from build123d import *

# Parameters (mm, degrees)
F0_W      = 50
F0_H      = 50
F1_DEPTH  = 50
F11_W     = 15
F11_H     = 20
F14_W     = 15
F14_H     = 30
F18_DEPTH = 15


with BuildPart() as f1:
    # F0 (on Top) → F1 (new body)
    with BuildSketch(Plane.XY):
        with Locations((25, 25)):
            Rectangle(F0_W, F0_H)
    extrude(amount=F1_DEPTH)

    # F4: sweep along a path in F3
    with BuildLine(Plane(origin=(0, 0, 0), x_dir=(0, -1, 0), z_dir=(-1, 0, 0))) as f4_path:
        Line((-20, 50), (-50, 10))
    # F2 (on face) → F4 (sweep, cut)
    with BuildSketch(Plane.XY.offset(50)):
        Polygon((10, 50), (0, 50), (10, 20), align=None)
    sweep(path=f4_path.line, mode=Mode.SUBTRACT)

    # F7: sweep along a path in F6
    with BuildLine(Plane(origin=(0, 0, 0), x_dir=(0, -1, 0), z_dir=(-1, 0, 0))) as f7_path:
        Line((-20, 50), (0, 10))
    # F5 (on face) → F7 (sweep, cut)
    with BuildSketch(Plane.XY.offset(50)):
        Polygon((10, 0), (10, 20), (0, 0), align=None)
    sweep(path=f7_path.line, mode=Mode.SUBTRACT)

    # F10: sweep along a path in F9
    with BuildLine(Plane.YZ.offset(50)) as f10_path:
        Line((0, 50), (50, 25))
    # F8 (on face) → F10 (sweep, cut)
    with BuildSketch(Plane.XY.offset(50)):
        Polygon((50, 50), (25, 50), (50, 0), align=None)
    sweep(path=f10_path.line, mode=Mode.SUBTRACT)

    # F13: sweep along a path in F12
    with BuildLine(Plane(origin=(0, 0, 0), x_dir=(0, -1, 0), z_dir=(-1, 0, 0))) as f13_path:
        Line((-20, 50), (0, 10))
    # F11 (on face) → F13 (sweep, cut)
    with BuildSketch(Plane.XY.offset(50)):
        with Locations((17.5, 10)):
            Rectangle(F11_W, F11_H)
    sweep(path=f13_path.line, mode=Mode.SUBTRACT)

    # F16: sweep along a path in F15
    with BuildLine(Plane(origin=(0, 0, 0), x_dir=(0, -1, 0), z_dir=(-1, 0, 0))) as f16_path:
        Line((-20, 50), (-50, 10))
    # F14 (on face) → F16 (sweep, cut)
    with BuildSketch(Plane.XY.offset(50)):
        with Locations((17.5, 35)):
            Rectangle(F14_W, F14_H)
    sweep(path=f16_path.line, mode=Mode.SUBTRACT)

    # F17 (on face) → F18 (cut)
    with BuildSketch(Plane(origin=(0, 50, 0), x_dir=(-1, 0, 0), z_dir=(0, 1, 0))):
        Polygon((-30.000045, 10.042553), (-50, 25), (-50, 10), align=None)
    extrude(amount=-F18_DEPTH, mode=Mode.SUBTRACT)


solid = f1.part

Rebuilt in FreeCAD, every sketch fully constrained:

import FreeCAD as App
import Part
import Sketcher
from FreeCAD import Vector

doc = App.newDocument("Part")
body = doc.addObject("PartDesign::Body", "Body")

sketch1 = doc.addObject("Sketcher::SketchObject", "Sketch")
body.addObject(sketch1)
sketch1.AttachmentSupport = (doc.XY_Plane, [""])
sketch1.MapMode = "FlatFace"
sketch1.addGeometry([
    Part.LineSegment(Vector(0, 50, 0), Vector(0, 0, 0)),
    Part.LineSegment(Vector(0, 0, 0), Vector(50, 0, 0)),
    Part.LineSegment(Vector(50, 0, 0), Vector(50, 50, 0)),
    Part.LineSegment(Vector(50, 50, 0), Vector(0, 50, 0)),
], False)
sketch1.addConstraint([
    Sketcher.Constraint("Coincident", 0, 2, 1, 1),
    Sketcher.Constraint("Coincident", 1, 2, 2, 1),
    Sketcher.Constraint("Coincident", 2, 2, 3, 1),
    Sketcher.Constraint("Coincident", 3, 2, 0, 1),
    Sketcher.Constraint("Vertical", 0),
    Sketcher.Constraint("Horizontal", 1),
    Sketcher.Constraint("Vertical", 2),
    Sketcher.Constraint("Horizontal", 3),
    Sketcher.Constraint("Coincident", 0, 2, -1, 1),
    Sketcher.Constraint("Equal", 3, 0),
    Sketcher.Constraint("DistanceX", 1, 1, 1, 2, 50.0),
])
pad1 = doc.addObject("PartDesign::Pad", "Pad")
body.addObject(pad1)
pad1.Profile = sketch1
pad1.Length = 50

sketch2 = doc.addObject("Sketcher::SketchObject", "Sketch001")
body.addObject(sketch2)
sketch2.AttachmentSupport = (doc.XY_Plane, [""])
sketch2.MapMode = "FlatFace"
sketch2.AttachmentOffset = App.Placement(Vector(0, 0, 50), App.Rotation())
sketch2.addGeometry([
    Part.LineSegment(Vector(10, 50, 0), Vector(0, 50, 0)),
    Part.LineSegment(Vector(0, 50, 0), Vector(10, 20, 0)),
    Part.LineSegment(Vector(10, 20, 0), Vector(10, 50, 0)),
], False)
sketch2.addConstraint([
    Sketcher.Constraint("Coincident", 0, 2, 1, 1),
    Sketcher.Constraint("Coincident", 1, 2, 2, 1),
    Sketcher.Constraint("Coincident", 2, 2, 0, 1),
    Sketcher.Constraint("Horizontal", 0),
    Sketcher.Constraint("Vertical", 2),
    Sketcher.Constraint("PointOnObject", 0, 2, -2),
    Sketcher.Constraint("DistanceX", 0, 2, 0, 1, 10.0),
    Sketcher.Constraint("DistanceY", 2, 1, 2, 2, 30.0),
    Sketcher.Constraint("DistanceY", -1, 1, 0, 2, 50.0),
])

sketch3 = doc.addObject("Sketcher::SketchObject", "Sketch002")
body.addObject(sketch3)
sketch3.Placement = App.Placement(Vector(0, 36.8, 27.6), App.Rotation(Vector(0, 0.6, -0.8), Vector(1, 0, 0), Vector(0, -0.8, -0.6), "ZXY"))
sketch3.addGeometry(Part.LineSegment(Vector(-28, 0, 0), Vector(22, 0, 0)), False)
sketch3.addConstraint([
    Sketcher.Constraint("Horizontal", 0),
    Sketcher.Constraint("PointOnObject", 0, 1, -1),
    Sketcher.Constraint("DistanceX", 0, 1, 0, 2, 50.0),
    Sketcher.Constraint("DistanceX", 0, 1, -1, 1, 28.0),
])
doc.recompute()

subtractivepipe = doc.addObject("PartDesign::SubtractivePipe", "SubtractivePipe")
body.addObject(subtractivepipe)
subtractivepipe.Profile = sketch2
subtractivepipe.Spine = (sketch3, ["Edge1"])

sketch4 = doc.addObject("Sketcher::SketchObject", "Sketch003")
body.addObject(sketch4)
sketch4.AttachmentSupport = (doc.XY_Plane, [""])
sketch4.MapMode = "FlatFace"
sketch4.AttachmentOffset = App.Placement(Vector(0, 0, 50), App.Rotation())
sketch4.addGeometry([
    Part.LineSegment(Vector(10, 0, 0), Vector(10, 20, 0)),
    Part.LineSegment(Vector(10, 20, 0), Vector(0, 0, 0)),
    Part.LineSegment(Vector(0, 0, 0), Vector(10, 0, 0)),
], False)
sketch4.addConstraint([
    Sketcher.Constraint("Coincident", 0, 2, 1, 1),
    Sketcher.Constraint("Coincident", 1, 2, 2, 1),
    Sketcher.Constraint("Coincident", 2, 2, 0, 1),
    Sketcher.Constraint("Vertical", 0),
    Sketcher.Constraint("Horizontal", 2),
    Sketcher.Constraint("Coincident", 1, 2, -1, 1),
    Sketcher.Constraint("DistanceX", 2, 1, 2, 2, 10.0),
    Sketcher.Constraint("DistanceY", 0, 1, 0, 2, 20.0),
])

sketch5 = doc.addObject("Sketcher::SketchObject", "Sketch004")
body.addObject(sketch5)
sketch5.Placement = App.Placement(Vector(0, -4, 2), App.Rotation(Vector(0, 0.447213595, 0.894427191), Vector(1, 0, 0), Vector(0, 0.894427191, -0.447213595), "ZXY"))
sketch5.addGeometry(Part.LineSegment(Vector(53.665631, 0, 0), Vector(8.944272, 0, 0)), False)
sketch5.addConstraint([
    Sketcher.Constraint("Horizontal", 0),
    Sketcher.Constraint("PointOnObject", 0, 1, -1),
    Sketcher.Constraint("DistanceX", 0, 2, 0, 1, 44.72136),
    Sketcher.Constraint("DistanceX", -1, 1, 0, 1, 53.665631),
])
doc.recompute()

subtractivepipe2 = doc.addObject("PartDesign::SubtractivePipe", "SubtractivePipe001")
body.addObject(subtractivepipe2)
subtractivepipe2.Profile = sketch4
subtractivepipe2.Spine = (sketch5, ["Edge1"])

sketch6 = doc.addObject("Sketcher::SketchObject", "Sketch005")
body.addObject(sketch6)
sketch6.AttachmentSupport = (doc.XY_Plane, [""])
sketch6.MapMode = "FlatFace"
sketch6.AttachmentOffset = App.Placement(Vector(0, 0, 50), App.Rotation())
sketch6.addGeometry([
    Part.LineSegment(Vector(50, 50, 0), Vector(25, 50, 0)),
    Part.LineSegment(Vector(25, 50, 0), Vector(50, 0, 0)),
    Part.LineSegment(Vector(50, 0, 0), Vector(50, 50, 0)),
], False)
sketch6.addConstraint([
    Sketcher.Constraint("Coincident", 0, 2, 1, 1),
    Sketcher.Constraint("Coincident", 1, 2, 2, 1),
    Sketcher.Constraint("Coincident", 2, 2, 0, 1),
    Sketcher.Constraint("Horizontal", 0),
    Sketcher.Constraint("Vertical", 2),
    Sketcher.Constraint("PointOnObject", 1, 2, -1),
    Sketcher.Constraint("DistanceX", 0, 2, 0, 1, 25.0),
    Sketcher.Constraint("DistanceY", 2, 1, 2, 2, 50.0),
    Sketcher.Constraint("DistanceX", -1, 1, 0, 2, 25.0),
])

sketch7 = doc.addObject("Sketcher::SketchObject", "Sketch006")
body.addObject(sketch7)
sketch7.Placement = App.Placement(Vector(0, 20, 40), App.Rotation(Vector(0, -0.894427191, 0.447213595), Vector(1, 0, 0), Vector(0, 0.447213595, 0.894427191), "ZXY"))
sketch7.addGeometry(Part.LineSegment(Vector(22.36068, 50, 0), Vector(-33.54102, 50, 0)), False)
sketch7.addConstraint([
    Sketcher.Constraint("Horizontal", 0),
    Sketcher.Constraint("DistanceY", -1, 1, 0, 1, 50.0),
    Sketcher.Constraint("DistanceX", 0, 2, 0, 1, 55.901699),
    Sketcher.Constraint("DistanceX", -1, 1, 0, 1, 22.36068),
])
doc.recompute()

subtractivepipe3 = doc.addObject("PartDesign::SubtractivePipe", "SubtractivePipe002")
body.addObject(subtractivepipe3)
subtractivepipe3.Profile = sketch6
subtractivepipe3.Spine = (sketch7, ["Edge1"])

sketch8 = doc.addObject("Sketcher::SketchObject", "Sketch007")
body.addObject(sketch8)
sketch8.AttachmentSupport = (doc.XY_Plane, [""])
sketch8.MapMode = "FlatFace"
sketch8.AttachmentOffset = App.Placement(Vector(0, 0, 50), App.Rotation())
sketch8.addGeometry([
    Part.LineSegment(Vector(10, 20, 0), Vector(10, 0, 0)),
    Part.LineSegment(Vector(10, 0, 0), Vector(25, 0, 0)),
    Part.LineSegment(Vector(25, 0, 0), Vector(25, 20, 0)),
    Part.LineSegment(Vector(25, 20, 0), Vector(10, 20, 0)),
], False)
sketch8.addConstraint([
    Sketcher.Constraint("Coincident", 0, 2, 1, 1),
    Sketcher.Constraint("Coincident", 1, 2, 2, 1),
    Sketcher.Constraint("Coincident", 2, 2, 3, 1),
    Sketcher.Constraint("Coincident", 3, 2, 0, 1),
    Sketcher.Constraint("Vertical", 0),
    Sketcher.Constraint("Horizontal", 1),
    Sketcher.Constraint("Vertical", 2),
    Sketcher.Constraint("Horizontal", 3),
    Sketcher.Constraint("PointOnObject", 0, 2, -1),
    Sketcher.Constraint("DistanceX", 1, 1, 1, 2, 15.0),
    Sketcher.Constraint("DistanceY", 0, 2, 0, 1, 20.0),
    Sketcher.Constraint("DistanceX", -1, 1, 0, 2, 10.0),
])

sketch9 = doc.addObject("Sketcher::SketchObject", "Sketch008")
body.addObject(sketch9)
sketch9.Placement = App.Placement(Vector(0, -4, 2), App.Rotation(Vector(0, 0.447213595, 0.894427191), Vector(1, 0, 0), Vector(0, 0.894427191, -0.447213595), "ZXY"))
sketch9.addGeometry(Part.LineSegment(Vector(53.665631, 0, 0), Vector(8.944272, 0, 0)), False)
sketch9.addConstraint([
    Sketcher.Constraint("Horizontal", 0),
    Sketcher.Constraint("PointOnObject", 0, 1, -1),
    Sketcher.Constraint("DistanceX", 0, 2, 0, 1, 44.72136),
    Sketcher.Constraint("DistanceX", -1, 1, 0, 1, 53.665631),
])
doc.recompute()

subtractivepipe4 = doc.addObject("PartDesign::SubtractivePipe", "SubtractivePipe003")
body.addObject(subtractivepipe4)
subtractivepipe4.Profile = sketch8
subtractivepipe4.Spine = (sketch9, ["Edge1"])

sketch10 = doc.addObject("Sketcher::SketchObject", "Sketch009")
body.addObject(sketch10)
sketch10.AttachmentSupport = (doc.XY_Plane, [""])
sketch10.MapMode = "FlatFace"
sketch10.AttachmentOffset = App.Placement(Vector(0, 0, 50), App.Rotation())
sketch10.addGeometry([
    Part.LineSegment(Vector(10, 50, 0), Vector(10, 20, 0)),
    Part.LineSegment(Vector(10, 20, 0), Vector(25, 20, 0)),
    Part.LineSegment(Vector(25, 20, 0), Vector(25, 50, 0)),
    Part.LineSegment(Vector(25, 50, 0), Vector(10, 50, 0)),
], False)
sketch10.addConstraint([
    Sketcher.Constraint("Coincident", 0, 2, 1, 1),
    Sketcher.Constraint("Coincident", 1, 2, 2, 1),
    Sketcher.Constraint("Coincident", 2, 2, 3, 1),
    Sketcher.Constraint("Coincident", 3, 2, 0, 1),
    Sketcher.Constraint("Vertical", 0),
    Sketcher.Constraint("Horizontal", 1),
    Sketcher.Constraint("Vertical", 2),
    Sketcher.Constraint("Horizontal", 3),
    Sketcher.Constraint("DistanceX", 1, 1, 1, 2, 15.0),
    Sketcher.Constraint("DistanceY", 0, 2, 0, 1, 30.0),
    Sketcher.Constraint("DistanceX", -1, 1, 0, 2, 10.0),
    Sketcher.Constraint("DistanceY", -1, 1, 0, 2, 20.0),
])

sketch11 = doc.addObject("Sketcher::SketchObject", "Sketch010")
body.addObject(sketch11)
sketch11.Placement = App.Placement(Vector(0, 36.8, 27.6), App.Rotation(Vector(0, 0.6, -0.8), Vector(1, 0, 0), Vector(0, -0.8, -0.6), "ZXY"))
sketch11.addGeometry(Part.LineSegment(Vector(-28, 0, 0), Vector(22, 0, 0)), False)
sketch11.addConstraint([
    Sketcher.Constraint("Horizontal", 0),
    Sketcher.Constraint("PointOnObject", 0, 1, -1),
    Sketcher.Constraint("DistanceX", 0, 1, 0, 2, 50.0),
    Sketcher.Constraint("DistanceX", 0, 1, -1, 1, 28.0),
])
doc.recompute()

subtractivepipe5 = doc.addObject("PartDesign::SubtractivePipe", "SubtractivePipe004")
body.addObject(subtractivepipe5)
subtractivepipe5.Profile = sketch10
subtractivepipe5.Spine = (sketch11, ["Edge1"])

sketch12 = doc.addObject("Sketcher::SketchObject", "Sketch011")
body.addObject(sketch12)
sketch12.AttachmentSupport = (doc.XZ_Plane, [""])
sketch12.MapMode = "FlatFace"
sketch12.AttachmentOffset = App.Placement(Vector(0, 0, -50), App.Rotation())
sketch12.addGeometry([
    Part.LineSegment(Vector(30.000045, 10.042553, 0), Vector(50, 25, 0)),
    Part.LineSegment(Vector(50, 25, 0), Vector(50, 10, 0)),
    Part.LineSegment(Vector(50, 10, 0), Vector(30.000045, 10.042553, 0)),
], False)
sketch12.addConstraint([
    Sketcher.Constraint("Coincident", 0, 2, 1, 1),
    Sketcher.Constraint("Coincident", 1, 2, 2, 1),
    Sketcher.Constraint("Coincident", 2, 2, 0, 1),
    Sketcher.Constraint("Vertical", 1),
    Sketcher.Constraint("DistanceY", 1, 2, 1, 1, 15.0),
    Sketcher.Constraint("Distance", 2, 20.0),
    Sketcher.Constraint("DistanceX", -1, 1, 0, 2, 50.0),
    Sketcher.Constraint("DistanceY", -1, 1, 0, 2, 25.0),
    Sketcher.Constraint("Distance", 0, 24.974455),
])
pocket1 = doc.addObject("PartDesign::Pocket", "Pocket")
body.addObject(pocket1)
pocket1.Profile = sketch12
pocket1.Length = 15
pocket1.Reversed = True

doc.recompute()
